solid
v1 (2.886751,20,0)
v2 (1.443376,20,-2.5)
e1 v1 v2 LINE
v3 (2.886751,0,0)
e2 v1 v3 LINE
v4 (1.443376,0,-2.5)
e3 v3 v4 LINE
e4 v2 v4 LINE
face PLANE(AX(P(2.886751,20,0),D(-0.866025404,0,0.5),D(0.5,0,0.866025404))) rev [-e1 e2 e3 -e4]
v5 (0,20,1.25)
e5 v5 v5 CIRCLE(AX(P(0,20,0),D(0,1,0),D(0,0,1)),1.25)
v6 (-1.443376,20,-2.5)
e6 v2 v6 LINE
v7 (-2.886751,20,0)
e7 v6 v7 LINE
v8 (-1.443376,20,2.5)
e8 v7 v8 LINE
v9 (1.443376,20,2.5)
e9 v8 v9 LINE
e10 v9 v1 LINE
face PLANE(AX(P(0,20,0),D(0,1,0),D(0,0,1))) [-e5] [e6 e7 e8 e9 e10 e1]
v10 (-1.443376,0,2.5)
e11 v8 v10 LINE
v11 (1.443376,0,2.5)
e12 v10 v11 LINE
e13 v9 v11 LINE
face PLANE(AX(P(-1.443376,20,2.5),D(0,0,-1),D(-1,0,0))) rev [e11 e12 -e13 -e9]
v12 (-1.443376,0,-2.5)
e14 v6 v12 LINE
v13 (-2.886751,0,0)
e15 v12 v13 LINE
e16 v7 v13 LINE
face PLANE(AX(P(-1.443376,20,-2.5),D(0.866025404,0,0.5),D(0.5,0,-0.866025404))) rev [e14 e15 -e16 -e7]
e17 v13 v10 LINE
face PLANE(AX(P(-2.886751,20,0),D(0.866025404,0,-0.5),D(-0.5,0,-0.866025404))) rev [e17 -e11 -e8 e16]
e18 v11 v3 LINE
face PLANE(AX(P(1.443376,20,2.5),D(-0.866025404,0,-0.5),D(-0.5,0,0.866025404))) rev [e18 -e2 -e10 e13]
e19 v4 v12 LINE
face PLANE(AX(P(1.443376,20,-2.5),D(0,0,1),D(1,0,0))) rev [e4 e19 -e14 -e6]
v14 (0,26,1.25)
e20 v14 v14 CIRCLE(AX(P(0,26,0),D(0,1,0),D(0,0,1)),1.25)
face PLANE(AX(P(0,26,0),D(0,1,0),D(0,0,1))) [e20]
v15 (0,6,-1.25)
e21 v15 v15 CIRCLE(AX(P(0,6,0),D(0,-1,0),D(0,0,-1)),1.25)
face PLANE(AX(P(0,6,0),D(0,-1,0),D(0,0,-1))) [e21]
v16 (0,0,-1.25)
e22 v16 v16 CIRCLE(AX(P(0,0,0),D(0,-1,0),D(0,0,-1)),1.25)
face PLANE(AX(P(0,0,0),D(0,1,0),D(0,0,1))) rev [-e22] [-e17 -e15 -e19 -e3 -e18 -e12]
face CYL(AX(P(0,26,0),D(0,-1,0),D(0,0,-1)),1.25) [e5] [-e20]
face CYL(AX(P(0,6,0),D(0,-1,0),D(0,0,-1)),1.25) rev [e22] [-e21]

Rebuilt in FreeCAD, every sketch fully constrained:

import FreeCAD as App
import Part
import Sketcher

V = App.Vector
Q = App.Units.Quantity

doc = App.newDocument("Part")
body = doc.addObject("PartDesign::Body", "Body")

sketch1 = doc.addObject("Sketcher::SketchObject", "Sketch")
body.addObject(sketch1)
sketch1.AttachmentSupport = (doc.XZ_Plane, [""])
sketch1.MapMode = "FlatFace"
sketch1.addGeometry([
    Part.LineSegment(V(-2.9, 0, 0), V(-1.4, 2.5, 0)),
    Part.LineSegment(V(-1.4, 2.5, 0), V(1.4, 2.5, 0)),
    Part.LineSegment(V(1.4, 2.5, 0), V(2.9, 0, 0)),
    Part.LineSegment(V(2.9, 0, 0), V(1.4, -2.5, 0)),
    Part.LineSegment(V(1.4, -2.5, 0), V(-1.4, -2.5, 0)),
    Part.LineSegment(V(-1.4, -2.5, 0), V(-2.9, 0, 0)),
], False)
sketch1.addConstraint([
    Sketcher.Constraint("Coincident", 0, 2, 1, 1),
    Sketcher.Constraint("Coincident", 1, 2, 2, 1),
    Sketcher.Constraint("Coincident", 2, 2, 3, 1),
    Sketcher.Constraint("Coincident", 3, 2, 4, 1),
    Sketcher.Constraint("Coincident", 4, 2, 5, 1),
    Sketcher.Constraint("Coincident", 5, 2, 0, 1),
    Sketcher.Constraint("Horizontal", 1),
    Sketcher.Constraint("Horizontal", 4),
    Sketcher.Constraint("Symmetric", 0, 2, 3, 2, -1, 1),
    Sketcher.Constraint("Symmetric", 2, 2, 5, 2, -1, 1),
    Sketcher.Constraint("PointOnObject", 2, 2, -1),
    Sketcher.Constraint("Parallel", 2, 5),
    Sketcher.Constraint("Vertical", 1, 2, 3, 2),
    Sketcher.Constraint("Angle", 0, Q("60 deg")),
    Sketcher.Constraint("DistanceY", 3, 2, 1, 2, 5.0),
    Sketcher.Constraint("DistanceX", 1, 1, 1, 2, 2.886751),
])
pad1 = doc.addObject("PartDesign::Pad", "Pad")
body.addObject(pad1)
pad1.Profile = sketch1
pad1.Length = 20
pad1.Reversed = True

sketch2 = doc.addObject("Sketcher::SketchObject", "Sketch001")
body.addObject(sketch2)
sketch2.AttachmentSupport = (doc.XZ_Plane, [""])
sketch2.MapMode = "FlatFace"
sketch2.AttachmentOffset = App.Placement(V(0, 0, -20), App.Rotation())
sketch2.addGeometry(Part.Circle(V(0, 0, 0), V(0, 0, 1), 1.2), False)
sketch2.addConstraint([
    Sketcher.Constraint("Coincident", 0, 3, -1, 1),
    Sketcher.Constraint("Diameter", 0, 2.5),
])
pad2 = doc.addObject("PartDesign::Pad", "Pad001")
body.addObject(pad2)
pad2.Profile = sketch2
pad2.Length = 6
pad2.Reversed = True

sketch3 = doc.addObject("Sketcher::SketchObject", "Sketch002")
body.addObject(sketch3)
sketch3.AttachmentSupport = (doc.XZ_Plane, [""])
sketch3.MapMode = "FlatFace"
sketch3.addGeometry(Part.Circle(V(0, 0, 0), V(0, 0, 1), 1.2), False)
sketch3.addConstraint([
    Sketcher.Constraint("Coincident", 0, 3, -1, 1),
    Sketcher.Constraint("Diameter", 0, 2.5),
])
pocket1 = doc.addObject("PartDesign::Pocket", "Pocket")
body.addObject(pocket1)
pocket1.Profile = sketch3
pocket1.Length = 6

doc.recompute()
